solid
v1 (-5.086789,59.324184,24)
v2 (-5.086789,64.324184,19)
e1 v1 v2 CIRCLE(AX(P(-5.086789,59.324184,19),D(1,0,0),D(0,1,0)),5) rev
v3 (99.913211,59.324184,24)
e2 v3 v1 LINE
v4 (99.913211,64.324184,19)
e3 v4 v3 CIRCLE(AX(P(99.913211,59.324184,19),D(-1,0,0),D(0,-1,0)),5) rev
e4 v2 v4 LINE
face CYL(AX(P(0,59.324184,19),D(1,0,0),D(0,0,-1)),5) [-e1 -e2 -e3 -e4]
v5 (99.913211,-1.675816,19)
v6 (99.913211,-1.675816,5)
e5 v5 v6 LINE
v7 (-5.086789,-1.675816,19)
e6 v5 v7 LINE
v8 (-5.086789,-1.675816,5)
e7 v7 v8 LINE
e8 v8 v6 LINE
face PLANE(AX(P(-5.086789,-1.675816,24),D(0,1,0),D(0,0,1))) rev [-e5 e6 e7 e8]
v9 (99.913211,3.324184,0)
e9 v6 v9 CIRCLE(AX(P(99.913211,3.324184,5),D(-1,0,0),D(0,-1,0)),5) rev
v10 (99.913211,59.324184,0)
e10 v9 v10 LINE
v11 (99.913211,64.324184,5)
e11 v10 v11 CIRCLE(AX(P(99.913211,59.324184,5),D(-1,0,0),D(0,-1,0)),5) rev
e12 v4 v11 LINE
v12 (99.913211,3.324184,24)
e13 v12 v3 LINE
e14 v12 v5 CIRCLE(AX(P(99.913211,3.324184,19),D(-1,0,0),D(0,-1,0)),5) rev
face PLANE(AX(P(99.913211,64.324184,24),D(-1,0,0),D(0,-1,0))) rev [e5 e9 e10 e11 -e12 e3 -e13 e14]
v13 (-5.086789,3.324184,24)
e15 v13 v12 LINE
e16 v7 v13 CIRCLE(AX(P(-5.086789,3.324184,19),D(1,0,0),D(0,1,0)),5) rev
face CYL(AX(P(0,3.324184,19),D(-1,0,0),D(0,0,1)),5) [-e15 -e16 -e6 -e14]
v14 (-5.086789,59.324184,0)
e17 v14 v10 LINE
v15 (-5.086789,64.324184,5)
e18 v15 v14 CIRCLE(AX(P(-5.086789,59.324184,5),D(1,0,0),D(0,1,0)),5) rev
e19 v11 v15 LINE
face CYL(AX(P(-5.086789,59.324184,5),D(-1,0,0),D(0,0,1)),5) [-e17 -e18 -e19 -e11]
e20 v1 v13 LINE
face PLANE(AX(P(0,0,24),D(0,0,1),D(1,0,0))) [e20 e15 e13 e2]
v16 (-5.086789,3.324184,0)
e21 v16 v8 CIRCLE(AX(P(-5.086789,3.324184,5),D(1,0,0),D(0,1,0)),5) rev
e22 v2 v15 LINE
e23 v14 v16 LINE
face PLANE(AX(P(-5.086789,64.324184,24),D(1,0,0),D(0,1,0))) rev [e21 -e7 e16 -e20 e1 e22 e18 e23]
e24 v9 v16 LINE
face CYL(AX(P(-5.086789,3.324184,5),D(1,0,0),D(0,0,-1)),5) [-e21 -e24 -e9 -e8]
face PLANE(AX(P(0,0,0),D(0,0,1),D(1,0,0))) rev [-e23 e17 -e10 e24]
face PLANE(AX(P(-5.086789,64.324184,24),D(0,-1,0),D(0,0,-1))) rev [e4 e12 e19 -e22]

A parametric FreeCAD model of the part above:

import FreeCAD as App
import Part
import Sketcher
from FreeCAD import Vector


def edges_at(feature, points):
    """Names of the edges that pass closest to the given points."""
    edges = feature.Shape.Edges
    near = lambda p: min(range(len(edges)), key=lambda i: edges[i].distToShape(Part.Vertex(*p))[0])
    return sorted({f"Edge{near(p) + 1}" for p in points})

doc = App.newDocument("Part")
body = doc.addObject("PartDesign::Body", "Body")

# Sketch on XY plane
sketch1 = body.newObject("Sketcher::SketchObject", "Sketch")
sketch1.AttachmentSupport = (doc.getObject("XY_Plane"), [""])
sketch1.MapMode = "FlatFace"
sketch1.addGeometry(Part.LineSegment(Vector(-5, 64, 0), Vector(-5, -2, 0)), False)
sketch1.addGeometry(Part.LineSegment(Vector(-5, -2, 0), Vector(100, -2, 0)), False)
sketch1.addGeometry(Part.LineSegment(Vector(100, -2, 0), Vector(100, 64, 0)), False)
sketch1.addGeometry(Part.LineSegment(Vector(100, 64, 0), Vector(-5, 64, 0)), False)
sketch1.addConstraint(Sketcher.Constraint("Coincident", 0, 2, 1, 1))
sketch1.addConstraint(Sketcher.Constraint("Coincident", 1, 2, 2, 1))
sketch1.addConstraint(Sketcher.Constraint("Coincident", 2, 2, 3, 1))
sketch1.addConstraint(Sketcher.Constraint("Coincident", 3, 2, 0, 1))
sketch1.addConstraint(Sketcher.Constraint("Vertical", 0))
sketch1.addConstraint(Sketcher.Constraint("Horizontal", 1))
sketch1.addConstraint(Sketcher.Constraint("Vertical", 2))
sketch1.addConstraint(Sketcher.Constraint("Horizontal", 3))
sketch1.addConstraint(Sketcher.Constraint("DistanceX", 1, 1, 1, 2, 105.0))
sketch1.addConstraint(Sketcher.Constraint("DistanceY", 0, 2, 0, 1, 66.0))
sketch1.addConstraint(Sketcher.Constraint("DistanceX", 0, 2, -1, 1, 5.086789))
sketch1.addConstraint(Sketcher.Constraint("DistanceY", 0, 2, -1, 1, 1.675816))
pad1 = body.newObject("PartDesign::Pad", "Pad")
pad1.Profile = sketch1
pad1.Length = 24
doc.recompute()

fillet = body.newObject("PartDesign::Fillet", "Fillet")
fillet.Base = (pad1, edges_at(pad1, [
    (47.413, 64.324, 24),
    (47.413, 64.324, 0),
    (47.413, -1.676, 0),
    (47.413, -1.676, 24),
]))
fillet.Radius = 5

doc.recompute()
